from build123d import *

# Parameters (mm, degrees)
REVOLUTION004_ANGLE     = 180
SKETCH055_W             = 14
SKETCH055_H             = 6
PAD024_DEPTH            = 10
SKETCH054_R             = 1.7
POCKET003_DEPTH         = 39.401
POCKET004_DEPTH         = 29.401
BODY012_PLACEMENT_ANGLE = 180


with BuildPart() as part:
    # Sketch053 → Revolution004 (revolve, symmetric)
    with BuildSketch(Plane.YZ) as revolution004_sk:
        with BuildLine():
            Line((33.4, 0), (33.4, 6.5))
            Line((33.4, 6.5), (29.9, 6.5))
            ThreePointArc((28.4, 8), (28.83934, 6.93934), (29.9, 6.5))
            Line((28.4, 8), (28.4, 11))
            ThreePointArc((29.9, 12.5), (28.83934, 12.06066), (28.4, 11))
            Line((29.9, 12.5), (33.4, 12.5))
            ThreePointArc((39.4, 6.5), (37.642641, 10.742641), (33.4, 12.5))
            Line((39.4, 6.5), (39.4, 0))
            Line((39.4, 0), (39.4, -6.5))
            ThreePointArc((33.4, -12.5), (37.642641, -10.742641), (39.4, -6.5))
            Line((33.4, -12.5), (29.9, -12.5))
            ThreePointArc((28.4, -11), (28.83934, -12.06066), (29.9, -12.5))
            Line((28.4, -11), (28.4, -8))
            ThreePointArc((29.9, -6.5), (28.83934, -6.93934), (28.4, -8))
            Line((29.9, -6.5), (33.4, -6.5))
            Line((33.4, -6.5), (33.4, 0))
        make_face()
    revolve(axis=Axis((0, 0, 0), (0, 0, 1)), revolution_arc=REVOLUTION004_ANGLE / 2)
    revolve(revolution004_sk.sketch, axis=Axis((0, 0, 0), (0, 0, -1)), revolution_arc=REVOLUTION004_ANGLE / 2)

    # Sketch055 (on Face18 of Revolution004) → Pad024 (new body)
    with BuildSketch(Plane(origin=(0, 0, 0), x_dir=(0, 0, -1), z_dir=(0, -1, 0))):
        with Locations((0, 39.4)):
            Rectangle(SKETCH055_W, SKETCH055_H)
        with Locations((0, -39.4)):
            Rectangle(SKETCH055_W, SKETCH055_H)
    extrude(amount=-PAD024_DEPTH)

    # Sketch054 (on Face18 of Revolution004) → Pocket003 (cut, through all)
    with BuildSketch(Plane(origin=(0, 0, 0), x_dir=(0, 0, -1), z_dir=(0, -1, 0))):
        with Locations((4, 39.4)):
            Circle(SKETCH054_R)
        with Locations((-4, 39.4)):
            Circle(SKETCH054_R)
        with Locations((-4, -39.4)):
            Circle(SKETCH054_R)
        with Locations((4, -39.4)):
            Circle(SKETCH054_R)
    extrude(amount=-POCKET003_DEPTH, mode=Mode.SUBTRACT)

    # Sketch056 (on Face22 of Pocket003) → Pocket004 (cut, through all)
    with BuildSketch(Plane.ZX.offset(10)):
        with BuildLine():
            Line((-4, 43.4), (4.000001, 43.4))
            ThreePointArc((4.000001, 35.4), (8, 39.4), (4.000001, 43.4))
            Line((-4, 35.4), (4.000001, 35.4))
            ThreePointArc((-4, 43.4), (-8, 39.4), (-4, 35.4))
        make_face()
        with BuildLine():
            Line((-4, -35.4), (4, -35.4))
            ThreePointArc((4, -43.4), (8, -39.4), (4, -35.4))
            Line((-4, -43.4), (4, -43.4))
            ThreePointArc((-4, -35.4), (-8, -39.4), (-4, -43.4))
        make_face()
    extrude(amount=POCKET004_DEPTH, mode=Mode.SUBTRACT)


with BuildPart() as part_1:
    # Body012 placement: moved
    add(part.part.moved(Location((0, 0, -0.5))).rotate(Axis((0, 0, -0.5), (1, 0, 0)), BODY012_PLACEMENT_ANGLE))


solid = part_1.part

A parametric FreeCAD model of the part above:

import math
import FreeCAD as App
import Part
import Sketcher

V = App.Vector
Q = App.Units.Quantity

doc = App.newDocument("Part")
params = doc.addObject("Spreadsheet::Sheet", "Params")
for row, (alias, value) in enumerate([
    ("sketch1_radius", "5.999999 mm"),
    ("sketch1_radius2", "1.500001 mm"),
    ("sketch1_height", "13 mm"),
    ("sketch1_width", "3.5 mm"),
    ("revolution_angle", "90 deg"),
    ("sketch2_radius", "5.999999 mm"),
    ("sketch2_radius2", "1.500001 mm"),
    ("sketch2_height", "13 mm"),
    ("sketch2_width", "3.5 mm"),
    ("revolution2_angle", "90 deg"),
    ("sketch3_width", "6 mm"),
    ("sketch3_height", "14 mm"),
    ("pad1_length", "10 mm"),
    ("sketch4_diameter", "3.4 mm"),
    ("sketch5_radius", "4 mm"),
    ("sketch5_height", "8.000001 mm"),
], start=1):
    params.set(f"A{row}", alias)
    params.set(f"B{row}", "=" + value)
    params.setAlias(f"B{row}", alias)

body = doc.addObject("PartDesign::Body", "Body")

sketch1 = body.newObject("Sketcher::SketchObject", "Sketch")
sketch1.AttachmentSupport = (doc.getObject("YZ_Plane"), [""])
sketch1.MapMode = "FlatFace"
sketch1.addGeometry([
    Part.LineSegment(V(29.9, 6.5, 0), V(33.4, 6.5, 0)),
    Part.LineSegment(V(33.4, 6.5, 0), V(33.4, -6.5, 0)),
    Part.LineSegment(V(33.4, -6.5, 0), V(29.9, -6.5, 0)),
    Part.ArcOfCircle(Part.Circle(V(29.900001, -8.000001, 0), V(0, 0, 1), 1.500001), math.radians(90.000022), math.radians(179.999978)),
    Part.LineSegment(V(28.4, -8, 0), V(28.4, -11, 0)),
    Part.ArcOfCircle(Part.Circle(V(29.900001, -10.999999, 0), V(0, 0, 1), 1.500001), math.radians(-179.999978), math.radians(-90.000022)),
    Part.LineSegment(V(29.9, -12.5, 0), V(33.4, -12.5, 0)),
    Part.ArcOfCircle(Part.Circle(V(33.400001, -6.500001, 0), V(0, 0, 1), 5.999999), math.radians(-90.00001), math.radians(0.00001)),
    Part.LineSegment(V(39.4, -6.5, 0), V(39.4, 6.5, 0)),
    Part.ArcOfCircle(Part.Circle(V(33.400001, 6.500001, 0), V(0, 0, 1), 5.999999), math.radians(-0.00001), math.radians(90.00001)),
    Part.LineSegment(V(33.4, 12.5, 0), V(29.9, 12.5, 0)),
    Part.ArcOfCircle(Part.Circle(V(29.900001, 10.999999, 0), V(0, 0, 1), 1.500001), math.radians(90.000022), math.radians(179.999978)),
    Part.LineSegment(V(28.4, 11, 0), V(28.4, 8, 0)),
    Part.ArcOfCircle(Part.Circle(V(29.900001, 8.000001, 0), V(0, 0, 1), 1.500001), math.radians(-179.999978), math.radians(-90.000022)),
], False)
sketch1.addConstraint([
    Sketcher.Constraint("Coincident", 0, 2, 1, 1),
    Sketcher.Constraint("Coincident", 1, 2, 2, 1),
    Sketcher.Constraint("Tangent", 2, 2, 3, 1),
    Sketcher.Constraint("Tangent", 3, 2, 4, 1),
    Sketcher.Constraint("Tangent", 4, 2, 5, 1),
    Sketcher.Constraint("Tangent", 5, 2, 6, 1),
    Sketcher.Constraint("Tangent", 6, 2, 7, 1),
    Sketcher.Constraint("Tangent", 7, 2, 8, 1),
    Sketcher.Constraint("Tangent", 8, 2, 9, 1),
    Sketcher.Constraint("Tangent", 9, 2, 10, 1),
    Sketcher.Constraint("Tangent", 10, 2, 11, 1),
    Sketcher.Constraint("Tangent", 11, 2, 12, 1),
    Sketcher.Constraint("Tangent", 12, 2, 13, 1),
    Sketcher.Constraint("Tangent", 13, 2, 0, 1),
    Sketcher.Constraint("Horizontal", 0),
    Sketcher.Constraint("Vertical", 1),
    Sketcher.Constraint("Horizontal", 2),
    Sketcher.Constraint("Vertical", 4),
    Sketcher.Constraint("Horizontal", 6),
    Sketcher.Constraint("Vertical", 8),
    Sketcher.Constraint("Horizontal", 10),
    Sketcher.Constraint("Vertical", 12),
    Sketcher.Constraint("Coincident", 0, 2, 9, 3),
    Sketcher.Constraint("Coincident", 1, 2, 7, 3),
    Sketcher.Constraint("Equal", 3, 5),
    Sketcher.Constraint("Equal", 5, 11),
    Sketcher.Constraint("Equal", 11, 13),
    Sketcher.Constraint("Symmetric", 5, 3, 11, 3, -1),
    Sketcher.Constraint("Radius", 7, Q("5.999999 mm")),
    Sketcher.Constraint("Radius", 3, Q("1.500001 mm")),
    Sketcher.Constraint("DistanceY", 1, 2, 1, 1, Q("13 mm")),
    Sketcher.Constraint("DistanceX", 0, 1, 0, 2, Q("3.5 mm")),
    Sketcher.Constraint("DistanceX", -1, 1, 3, 3, Q("29.900001 mm")),
])
sketch1.setExpression("Constraints[28]", "Params.sketch1_radius")
sketch1.setExpression("Constraints[29]", "Params.sketch1_radius2")
sketch1.setExpression("Constraints[30]", "Params.sketch1_height")
sketch1.setExpression("Constraints[31]", "Params.sketch1_width")
revolution = body.newObject("PartDesign::Revolution", "Revolution")
revolution.Profile = sketch1
revolution.ReferenceAxis = (sketch1, ["V_Axis"])
revolution.setExpression("Angle", "Params.revolution_angle")

sketch2 = body.newObject("Sketcher::SketchObject", "Sketch001")
sketch2.AttachmentSupport = (doc.getObject("YZ_Plane"), [""])
sketch2.MapMode = "FlatFace"
sketch2.addGeometry([
    Part.LineSegment(V(29.9, 6.5, 0), V(33.4, 6.5, 0)),
    Part.LineSegment(V(33.4, 6.5, 0), V(33.4, -6.5, 0)),
    Part.LineSegment(V(33.4, -6.5, 0), V(29.9, -6.5, 0)),
    Part.ArcOfCircle(Part.Circle(V(29.900001, -8.000001, 0), V(0, 0, 1), 1.500001), math.radians(90.000022), math.radians(179.999978)),
    Part.LineSegment(V(28.4, -8, 0), V(28.4, -11, 0)),
    Part.ArcOfCircle(Part.Circle(V(29.900001, -10.999999, 0), V(0, 0, 1), 1.500001), math.radians(-179.999978), math.radians(-90.000022)),
    Part.LineSegment(V(29.9, -12.5, 0), V(33.4, -12.5, 0)),
    Part.ArcOfCircle(Part.Circle(V(33.400001, -6.500001, 0), V(0, 0, 1), 5.999999), math.radians(-90.00001), math.radians(0.00001)),
    Part.LineSegment(V(39.4, -6.5, 0), V(39.4, 6.5, 0)),
    Part.ArcOfCircle(Part.Circle(V(33.400001, 6.500001, 0), V(0, 0, 1), 5.999999), math.radians(-0.00001), math.radians(90.00001)),
    Part.LineSegment(V(33.4, 12.5, 0), V(29.9, 12.5, 0)),
    Part.ArcOfCircle(Part.Circle(V(29.900001, 10.999999, 0), V(0, 0, 1), 1.500001), math.radians(90.000022), math.radians(179.999978)),
    Part.LineSegment(V(28.4, 11, 0), V(28.4, 8, 0)),
    Part.ArcOfCircle(Part.Circle(V(29.900001, 8.000001, 0), V(0, 0, 1), 1.500001), math.radians(-179.999978), math.radians(-90.000022)),
], False)
sketch2.addConstraint([
    Sketcher.Constraint("Coincident", 0, 2, 1, 1),
    Sketcher.Constraint("Coincident", 1, 2, 2, 1),
    Sketcher.Constraint("Tangent", 2, 2, 3, 1),
    Sketcher.Constraint("Tangent", 3, 2, 4, 1),
    Sketcher.Constraint("Tangent", 4, 2, 5, 1),
    Sketcher.Constraint("Tangent", 5, 2, 6, 1),
    Sketcher.Constraint("Tangent", 6, 2, 7, 1),
    Sketcher.Constraint("Tangent", 7, 2, 8, 1),
    Sketcher.Constraint("Tangent", 8, 2, 9, 1),
    Sketcher.Constraint("Tangent", 9, 2, 10, 1),
    Sketcher.Constraint("Tangent", 10, 2, 11, 1),
    Sketcher.Constraint("Tangent", 11, 2, 12, 1),
    Sketcher.Constraint("Tangent", 12, 2, 13, 1),
    Sketcher.Constraint("Tangent", 13, 2, 0, 1),
    Sketcher.Constraint("Horizontal", 0),
    Sketcher.Constraint("Vertical", 1),
    Sketcher.Constraint("Horizontal", 2),
    Sketcher.Constraint("Vertical", 4),
    Sketcher.Constraint("Horizontal", 6),
    Sketcher.Constraint("Vertical", 8),
    Sketcher.Constraint("Horizontal", 10),
    Sketcher.Constraint("Vertical", 12),
    Sketcher.Constraint("Coincident", 0, 2, 9, 3),
    Sketcher.Constraint("Coincident", 1, 2, 7, 3),
    Sketcher.Constraint("Equal", 3, 5),
    Sketcher.Constraint("Equal", 5, 11),
    Sketcher.Constraint("Equal", 11, 13),
    Sketcher.Constraint("Symmetric", 5, 3, 11, 3, -1),
    Sketcher.Constraint("Radius", 7, Q("5.999999 mm")),
    Sketcher.Constraint("Radius", 3, Q("1.500001 mm")),
    Sketcher.Constraint("DistanceY", 1, 2, 1, 1, Q("13 mm")),
    Sketcher.Constraint("DistanceX", 0, 1, 0, 2, Q("3.5 mm")),
    Sketcher.Constraint("DistanceX", -1, 1, 3, 3, Q("29.900001 mm")),
])
sketch2.setExpression("Constraints[28]", "Params.sketch2_radius")
sketch2.setExpression("Constraints[29]", "Params.sketch2_radius2")
sketch2.setExpression("Constraints[30]", "Params.sketch2_height")
sketch2.setExpression("Constraints[31]", "Params.sketch2_width")
revolution2 = body.newObject("PartDesign::Revolution", "Revolution001")
revolution2.Profile = sketch2
revolution2.ReferenceAxis = (sketch2, ["V_Axis"])
revolution2.setExpression("Angle", "Params.revolution2_angle")
revolution2.Reversed = True

sketch3 = body.newObject("Sketcher::SketchObject", "Sketch002")
sketch3.AttachmentSupport = (doc.getObject("XZ_Plane"), [""])
sketch3.MapMode = "FlatFace"
sketch3.addGeometry([
    Part.LineSegment(V(42.4, 7, 0), V(36.4, 7, 0)),
    Part.LineSegment(V(36.4, 7, 0), V(36.4, -7, 0)),
    Part.LineSegment(V(36.4, -7, 0), V(42.4, -7, 0)),
    Part.LineSegment(V(42.4, -7, 0), V(42.4, 7, 0)),
    Part.LineSegment(V(-36.4, 7, 0), V(-42.4, 7, 0)),
    Part.LineSegment(V(-42.4, 7, 0), V(-42.4, -7, 0)),
    Part.LineSegment(V(-42.4, -7, 0), V(-36.4, -7, 0)),
    Part.LineSegment(V(-36.4, -7, 0), V(-36.4, 7, 0)),
], False)
sketch3.addConstraint([
    Sketcher.Constraint("Coincident", 0, 2, 1, 1),
    Sketcher.Constraint("Coincident", 1, 2, 2, 1),
    Sketcher.Constraint("Coincident", 2, 2, 3, 1),
    Sketcher.Constraint("Coincident", 3, 2, 0, 1),
    Sketcher.Constraint("Coincident", 4, 2, 5, 1),
    Sketcher.Constraint("Coincident", 5, 2, 6, 1),
    Sketcher.Constraint("Coincident", 6, 2, 7, 1),
    Sketcher.Constraint("Coincident", 7, 2, 4, 1),
    Sketcher.Constraint("Horizontal", 0),
    Sketcher.Constraint("Vertical", 1),
    Sketcher.Constraint("Horizontal", 2),
    Sketcher.Constraint("Vertical", 3),
    Sketcher.Constraint("Horizontal", 4),
    Sketcher.Constraint("Vertical", 5),
    Sketcher.Constraint("Horizontal", 6),
    Sketcher.Constraint("Vertical", 7),
    Sketcher.Constraint("Symmetric", 2, 2, 4, 2, -1, 1),
    Sketcher.Constraint("Symmetric", 0, 2, 6, 2, -1, 1),
    Sketcher.Constraint("Horizontal", 3, 2, 4, 2),
    Sketcher.Constraint("DistanceX", 0, 2, 0, 1, Q("6 mm")),
    Sketcher.Constraint("DistanceY", 1, 2, 1, 1, Q("14 mm")),
    Sketcher.Constraint("DistanceX", -1, 1, 0, 2, Q("36.4 mm")),
])
sketch3.setExpression("Constraints[19]", "Params.sketch3_width")
sketch3.setExpression("Constraints[20]", "Params.sketch3_height")
pad1 = body.newObject("PartDesign::Pad", "Pad")
pad1.Profile = sketch3
pad1.setExpression("Length", "Params.pad1_length")
pad1.Reversed = True

sketch4 = body.newObject("Sketcher::SketchObject", "Sketch003")
sketch4.AttachmentSupport = (doc.getObject("XZ_Plane"), [""])
sketch4.MapMode = "FlatFace"
sketch4.addGeometry([
    Part.Circle(V(39.4, -4, 0), V(0, 0, 1), 1.7),
    Part.Circle(V(39.4, 4, 0), V(0, 0, 1), 1.7),
    Part.Circle(V(-39.4, 4, 0), V(0, 0, 1), 1.7),
    Part.Circle(V(-39.4, -4, 0), V(0, 0, 1), 1.7),
], False)
sketch4.addConstraint([
    Sketcher.Constraint("Equal", 0, 1),
    Sketcher.Constraint("Equal", 1, 2),
    Sketcher.Constraint("Equal", 2, 3),
    Sketcher.Constraint("Symmetric", 0, 3, 2, 3, -1, 1),
    Sketcher.Constraint("Symmetric", 1, 3, 3, 3, -1, 1),
    Sketcher.Constraint("Symmetric", 1, 3, 2, 3, -2),
    Sketcher.Constraint("Diameter", 0, Q("3.4 mm")),
    Sketcher.Constraint("DistanceY", 0, 3, -1, 1, Q("4 mm")),
    Sketcher.Constraint("DistanceX", -1, 1, 0, 3, Q("39.4 mm")),
])
sketch4.setExpression("Constraints[6]", "Params.sketch4_diameter")
pocket1 = body.newObject("PartDesign::Pocket", "Pocket")
pocket1.Profile = sketch4
pocket1.Type = "ThroughAll"

sketch5 = body.newObject("Sketcher::SketchObject", "Sketch004")
sketch5.AttachmentSupport = (doc.getObject("XZ_Plane"), [""])
sketch5.MapMode = "FlatFace"
sketch5.AttachmentOffset = App.Placement(V(0, 0, -10), App.Rotation())
sketch5.addGeometry([
    Part.LineSegment(V(43.4, 4.000001, 0), V(43.4, -4, 0)),
    Part.ArcOfCircle(Part.Circle(V(39.4, -4, 0), V(0, 0, 1), 4), math.radians(180), math.radians(360)),
    Part.LineSegment(V(35.4, -4, 0), V(35.4, 4.000001, 0)),
    Part.ArcOfCircle(Part.Circle(V(39.4, 4, 0), V(0, 0, 1), 4), math.radians(0.000014), math.radians(179.999986)),
    Part.LineSegment(V(-35.4, 4, 0), V(-35.4, -4, 0)),
    Part.ArcOfCircle(Part.Circle(V(-39.4, -4, 0), V(0, 0, 1), 4), math.radians(180), math.radians(360)),
    Part.LineSegment(V(-43.4, -4, 0), V(-43.4, 4, 0)),
    Part.ArcOfCircle(Part.Circle(V(-39.4, 4, 0), V(0, 0, 1), 4), math.radians(0), math.radians(180)),
], False)
sketch5.addConstraint([
    Sketcher.Constraint("Tangent", 0, 2, 1, 2),
    Sketcher.Constraint("Tangent", 1, 1, 2, 1),
    Sketcher.Constraint("Tangent", 2, 2, 3, 2),
    Sketcher.Constraint("Tangent", 3, 1, 0, 1),
    Sketcher.Constraint("Tangent", 4, 2, 5, 2),
    Sketcher.Constraint("Tangent", 5, 1, 6, 1),
    Sketcher.Constraint("Tangent", 6, 2, 7, 2),
    Sketcher.Constraint("Tangent", 7, 1, 4, 1),
    Sketcher.Constraint("Vertical", 0),
    Sketcher.Constraint("Vertical", 2),
    Sketcher.Constraint("Vertical", 4),
    Sketcher.Constraint("Vertical", 6),
    Sketcher.Constraint("Equal", 3, 5),
    Sketcher.Constraint("Symmetric", 3, 3, 5, 3, -1, 1),
    Sketcher.Constraint("Horizontal", 1, 3, 5, 3),
    Sketcher.Constraint("Horizontal", 3, 3, 7, 3),
    Sketcher.Constraint("Radius", 1, Q("4 mm")),
    Sketcher.Constraint("DistanceY", 0, 2, 0, 1, Q("8.000001 mm")),
    Sketcher.Constraint("DistanceX", -1, 1, 1, 3, Q("39.4 mm")),
])
sketch5.setExpression("Constraints[16]", "Params.sketch5_radius")
sketch5.setExpression("Constraints[17]", "Params.sketch5_height")
pocket2 = body.newObject("PartDesign::Pocket", "Pocket001")
pocket2.Profile = sketch5
pocket2.Type = "ThroughAll"
body2 = doc.addObject("PartDesign::Body", "Body001")
doc.recompute()

body.Placement = App.Placement(V(0, 0, -0.5), App.Rotation(V(1, 0, 0), 180))
boolean = body2.newObject("PartDesign::Boolean", "Boolean")
boolean.Type = "Fuse"
boolean.addObjects([body])

doc.recompute()
